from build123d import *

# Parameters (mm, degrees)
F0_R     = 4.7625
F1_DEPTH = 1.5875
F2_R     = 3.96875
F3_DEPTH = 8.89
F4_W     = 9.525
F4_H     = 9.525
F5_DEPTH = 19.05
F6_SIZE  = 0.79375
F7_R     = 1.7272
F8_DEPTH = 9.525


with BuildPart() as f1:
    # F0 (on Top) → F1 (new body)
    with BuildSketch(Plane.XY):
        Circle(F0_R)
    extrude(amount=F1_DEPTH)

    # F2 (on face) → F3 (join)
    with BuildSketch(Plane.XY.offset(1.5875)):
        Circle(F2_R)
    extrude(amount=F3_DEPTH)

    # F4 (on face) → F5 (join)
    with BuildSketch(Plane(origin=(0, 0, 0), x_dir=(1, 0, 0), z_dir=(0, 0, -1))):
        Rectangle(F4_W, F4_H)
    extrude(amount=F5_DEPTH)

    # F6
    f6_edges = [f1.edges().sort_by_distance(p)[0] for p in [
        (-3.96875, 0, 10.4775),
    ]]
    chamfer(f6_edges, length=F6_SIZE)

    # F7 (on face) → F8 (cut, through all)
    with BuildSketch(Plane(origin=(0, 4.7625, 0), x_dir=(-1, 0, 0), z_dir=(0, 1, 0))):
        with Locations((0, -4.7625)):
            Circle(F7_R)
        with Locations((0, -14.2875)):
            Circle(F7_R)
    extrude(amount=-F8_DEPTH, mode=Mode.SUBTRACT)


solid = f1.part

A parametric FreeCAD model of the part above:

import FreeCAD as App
import Part
import Sketcher
from FreeCAD import Vector
Q = App.Units.Quantity


def edges_at(feature, points):
    """Names of the edges that pass closest to the given points."""
    edges = feature.Shape.Edges
    near = lambda p: min(range(len(edges)), key=lambda i: edges[i].distToShape(Part.Vertex(*p))[0])
    return sorted({f"Edge{near(p) + 1}" for p in points})


def add_polygon(sketch, points):
    """Adds a closed chain of lines whose ends are joined by coincident constraints."""
    first, n = sketch.GeometryCount, len(points)
    for a, b in zip(points, points[1:] + points[:1]):
        sketch.addGeometry(Part.LineSegment(App.Vector(*a, 0), App.Vector(*b, 0)), False)
    for i in range(n):
        sketch.addConstraint(Sketcher.Constraint("Coincident", first + i, 2, first + (i + 1) % n, 1))

doc = App.newDocument("Part")
params = doc.addObject("Spreadsheet::Sheet", "Params")
for row, (alias, value) in enumerate([
    ("sketch1_diameter", "0.375 in"),
    ("pad1_length", "0.0625 in"),
    ("sketch2_diameter", "0.3125 in"),
    ("pad2_length", "0.35 in"),
    ("sketch3_width", "0.375 in"),
    ("pad3_length", "0.75 in"),
    ("chamfer_size", "0.03125 in"),
    ("sketch4_diameter", "0.136 in"),
], start=1):
    params.set(f"A{row}", alias)
    params.set(f"B{row}", "=" + value)
    params.setAlias(f"B{row}", alias)

body = doc.addObject("PartDesign::Body", "Body")

# Sketch on XY plane
sketch1 = body.newObject("Sketcher::SketchObject", "Sketch")
sketch1.AttachmentSupport = (doc.getObject("XY_Plane"), [""])
sketch1.MapMode = "FlatFace"
sketch1.addGeometry(Part.Circle(Vector(0, 0, 0), Vector(0, 0, 1), 4.8), False)
sketch1.addConstraint([
    Sketcher.Constraint("Coincident", 0, 3, -1, 1),
    Sketcher.Constraint("Diameter", 0, Q("0.375 in")),
])
sketch1.setExpression("Constraints[1]", "Params.sketch1_diameter")
pad1 = body.newObject("PartDesign::Pad", "Pad")
pad1.Profile = sketch1
pad1.setExpression("Length", "Params.pad1_length")

# Sketch on XY plane
sketch2 = body.newObject("Sketcher::SketchObject", "Sketch001")
sketch2.AttachmentSupport = (doc.getObject("XY_Plane"), [""])
sketch2.MapMode = "FlatFace"
sketch2.AttachmentOffset = App.Placement(Vector(0, 0, 0.0625 * 25.4), App.Rotation())
sketch2.addGeometry(Part.Circle(Vector(0, 0, 0), Vector(0, 0, 1), 4), False)
sketch2.addConstraint([
    Sketcher.Constraint("Coincident", 0, 3, -1, 1),
    Sketcher.Constraint("Diameter", 0, Q("0.3125 in")),
])
sketch2.setExpression("Constraints[1]", "Params.sketch2_diameter")
pad2 = body.newObject("PartDesign::Pad", "Pad001")
pad2.Profile = sketch2
pad2.setExpression("Length", "Params.pad2_length")

# Sketch on XY plane
sketch3 = body.newObject("Sketcher::SketchObject", "Sketch002")
sketch3.AttachmentSupport = (doc.getObject("XY_Plane"), [""])
sketch3.MapMode = "FlatFace"
add_polygon(sketch3, [(-5, -5), (-5, 5), (5, 5), (5, -5)])  # lines 0-3
sketch3.addConstraint([
    Sketcher.Constraint("Vertical", 0),
    Sketcher.Constraint("Horizontal", 1),
    Sketcher.Constraint("Vertical", 2),
    Sketcher.Constraint("Horizontal", 3),
    Sketcher.Constraint("Symmetric", 0, 2, 2, 2, -1, 1),
    Sketcher.Constraint("Equal", 3, 0),
    Sketcher.Constraint("DistanceX", 1, 1, 1, 2, Q("0.375 in")),
])
sketch3.setExpression("Constraints[10]", "Params.sketch3_width")
pad3 = body.newObject("PartDesign::Pad", "Pad002")
pad3.Profile = sketch3
pad3.setExpression("Length", "Params.pad3_length")
pad3.Reversed = True
doc.recompute()

chamfer = body.newObject("PartDesign::Chamfer", "Chamfer")
chamfer.Base = (pad3, edges_at(pad3, [(-3.969, 0, 10.477)]))
chamfer.setExpression("Size", "Params.chamfer_size")

# Sketch on XZ plane
sketch4 = body.newObject("Sketcher::SketchObject", "Sketch003")
sketch4.AttachmentSupport = (doc.getObject("XZ_Plane"), [""])
sketch4.MapMode = "FlatFace"
sketch4.AttachmentOffset = App.Placement(Vector(0, 0, -0.1875 * 25.4), App.Rotation())
sketch4.addGeometry([
    Part.Circle(Vector(0, -4.8, 0), Vector(0, 0, 1), 1.7),
    Part.Circle(Vector(0, -14.3, 0), Vector(0, 0, 1), 1.7),
], False)
sketch4.addConstraint([
    Sketcher.Constraint("Equal", 0, 1),
    Sketcher.Constraint("PointOnObject", 0, 3, -2),
    Sketcher.Constraint("PointOnObject", 1, 3, -2),
    Sketcher.Constraint("Diameter", 0, Q("0.136 in")),
    Sketcher.Constraint("DistanceY", 0, 3, -1, 1, Q("0.1875 in")),
    Sketcher.Constraint("DistanceY", 1, 3, -1, 1, Q("0.5625 in")),
])
sketch4.setExpression("Constraints[3]", "Params.sketch4_diameter")
pocket1 = body.newObject("PartDesign::Pocket", "Pocket")
pocket1.Profile = sketch4
pocket1.Type = "ThroughAll"
pocket1.Reversed = True

doc.recompute()
